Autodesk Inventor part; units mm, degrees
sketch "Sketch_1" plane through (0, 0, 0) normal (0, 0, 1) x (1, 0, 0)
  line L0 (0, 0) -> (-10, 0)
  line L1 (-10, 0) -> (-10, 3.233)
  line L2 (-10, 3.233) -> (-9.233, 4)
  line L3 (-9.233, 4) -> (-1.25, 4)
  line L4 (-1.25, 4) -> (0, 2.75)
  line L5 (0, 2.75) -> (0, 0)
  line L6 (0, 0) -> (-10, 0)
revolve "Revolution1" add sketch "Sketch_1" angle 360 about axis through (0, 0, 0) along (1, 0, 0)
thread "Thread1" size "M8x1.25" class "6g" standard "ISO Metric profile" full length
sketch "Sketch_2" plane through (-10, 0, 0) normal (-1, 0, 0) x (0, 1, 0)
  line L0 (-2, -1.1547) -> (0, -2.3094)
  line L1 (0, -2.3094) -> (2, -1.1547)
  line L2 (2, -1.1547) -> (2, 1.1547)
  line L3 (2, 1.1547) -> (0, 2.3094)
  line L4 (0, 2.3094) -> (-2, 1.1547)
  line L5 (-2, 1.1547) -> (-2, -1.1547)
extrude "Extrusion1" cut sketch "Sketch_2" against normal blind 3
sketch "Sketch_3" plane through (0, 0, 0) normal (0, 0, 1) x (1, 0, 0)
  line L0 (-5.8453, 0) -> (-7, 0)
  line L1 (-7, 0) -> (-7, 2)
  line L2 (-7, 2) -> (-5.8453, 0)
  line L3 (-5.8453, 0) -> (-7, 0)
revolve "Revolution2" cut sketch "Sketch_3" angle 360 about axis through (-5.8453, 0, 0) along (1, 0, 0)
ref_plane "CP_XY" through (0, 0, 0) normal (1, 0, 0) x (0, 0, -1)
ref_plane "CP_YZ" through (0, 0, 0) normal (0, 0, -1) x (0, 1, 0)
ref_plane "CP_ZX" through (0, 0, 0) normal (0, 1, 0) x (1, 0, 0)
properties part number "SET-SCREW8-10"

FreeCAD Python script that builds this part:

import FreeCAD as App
import Part
import Sketcher

V = App.Vector
Q = App.Units.Quantity

doc = App.newDocument("Part")
body = doc.addObject("PartDesign::Body", "Body")

sketch1 = body.newObject("Sketcher::SketchObject", "Sketch")
sketch1.AttachmentSupport = (doc.getObject("XY_Plane"), [""])
sketch1.MapMode = "FlatFace"
sketch1.addGeometry(Part.LineSegment(V(-10, 0, 0), V(0, 0, 0)), False)
sketch1.addGeometry(Part.LineSegment(V(0, 0, 0), V(0, 2.75, 0)), False)
sketch1.addGeometry(Part.LineSegment(V(0, 2.75, 0), V(-1.25, 4, 0)), False)
sketch1.addGeometry(Part.LineSegment(V(-1.25, 4, 0), V(-9.233, 4, 0)), False)
sketch1.addGeometry(Part.LineSegment(V(-9.233, 4, 0), V(-10, 3.233, 0)), False)
sketch1.addGeometry(Part.LineSegment(V(-10, 3.233, 0), V(-10, 0, 0)), False)
sketch1.addConstraint(Sketcher.Constraint("Coincident", 0, 2, 1, 1))
sketch1.addConstraint(Sketcher.Constraint("Coincident", 1, 2, 2, 1))
sketch1.addConstraint(Sketcher.Constraint("Coincident", 2, 2, 3, 1))
sketch1.addConstraint(Sketcher.Constraint("Coincident", 3, 2, 4, 1))
sketch1.addConstraint(Sketcher.Constraint("Coincident", 4, 2, 5, 1))
sketch1.addConstraint(Sketcher.Constraint("Coincident", 5, 2, 0, 1))
sketch1.addConstraint(Sketcher.Constraint("Horizontal", 0))
sketch1.addConstraint(Sketcher.Constraint("Vertical", 1))
sketch1.addConstraint(Sketcher.Constraint("Horizontal", 3))
sketch1.addConstraint(Sketcher.Constraint("Vertical", 5))
sketch1.addConstraint(Sketcher.Constraint("Coincident", 0, 2, -1, 1))
sketch1.addConstraint(Sketcher.Constraint("Perpendicular", 2, 4))
sketch1.addConstraint(Sketcher.Constraint("DistanceX", 0, 1, 0, 2, 10.0))
sketch1.addConstraint(Sketcher.Constraint("Angle", 2, Q("135 deg")))
sketch1.addConstraint(Sketcher.Constraint("DistanceY", -1, 1, 2, 2, 4.0))
sketch1.addConstraint(Sketcher.Constraint("DistanceY", 1, 1, 1, 2, 2.75))
sketch1.addConstraint(Sketcher.Constraint("DistanceX", 3, 2, 3, 1, 7.983))
revolution = body.newObject("PartDesign::Revolution", "Revolution")
revolution.Profile = sketch1
revolution.ReferenceAxis = (sketch1, ["H_Axis"])
revolution.Angle = 360

sketch2 = body.newObject("Sketcher::SketchObject", "Sketch001")
sketch2.AttachmentSupport = (doc.getObject("YZ_Plane"), [""])
sketch2.MapMode = "FlatFace"
sketch2.AttachmentOffset = App.Placement(V(0, 0, -10), App.Rotation())
sketch2.addGeometry(Part.LineSegment(V(-2, -1.1547, 0), V(-2, 1.1547, 0)), False)
sketch2.addGeometry(Part.LineSegment(V(-2, 1.1547, 0), V(0, 2.3094, 0)), False)
sketch2.addGeometry(Part.LineSegment(V(0, 2.3094, 0), V(2, 1.1547, 0)), False)
sketch2.addGeometry(Part.LineSegment(V(2, 1.1547, 0), V(2, -1.1547, 0)), False)
sketch2.addGeometry(Part.LineSegment(V(2, -1.1547, 0), V(0, -2.3094, 0)), False)
sketch2.addGeometry(Part.LineSegment(V(0, -2.3094, 0), V(-2, -1.1547, 0)), False)
sketch2.addConstraint(Sketcher.Constraint("Coincident", 0, 2, 1, 1))
sketch2.addConstraint(Sketcher.Constraint("Coincident", 1, 2, 2, 1))
sketch2.addConstraint(Sketcher.Constraint("Coincident", 2, 2, 3, 1))
sketch2.addConstraint(Sketcher.Constraint("Coincident", 3, 2, 4, 1))
sketch2.addConstraint(Sketcher.Constraint("Coincident", 4, 2, 5, 1))
sketch2.addConstraint(Sketcher.Constraint("Coincident", 5, 2, 0, 1))
sketch2.addConstraint(Sketcher.Constraint("Vertical", 0))
sketch2.addConstraint(Sketcher.Constraint("Vertical", 3))
sketch2.addConstraint(Sketcher.Constraint("Symmetric", 0, 2, 3, 2, -1, 1))
sketch2.addConstraint(Sketcher.Constraint("Symmetric", 1, 2, 4, 2, -1, 1))
sketch2.addConstraint(Sketcher.Constraint("PointOnObject", 1, 2, -2))
sketch2.addConstraint(Sketcher.Constraint("Parallel", 2, 5))
sketch2.addConstraint(Sketcher.Constraint("Horizontal", 0, 2, 2, 2))
sketch2.addConstraint(Sketcher.Constraint("Angle", 1, Q("30 deg")))
sketch2.addConstraint(Sketcher.Constraint("DistanceX", 0, 2, -1, 1, 2.0))
sketch2.addConstraint(Sketcher.Constraint("DistanceY", 0, 1, 0, 2, 2.3094))
pocket1 = body.newObject("PartDesign::Pocket", "Pocket")
pocket1.Profile = sketch2
pocket1.Length = 3
pocket1.Reversed = True

sketch3 = body.newObject("Sketcher::SketchObject", "Sketch002")
sketch3.AttachmentSupport = (doc.getObject("XY_Plane"), [""])
sketch3.MapMode = "FlatFace"
sketch3.addGeometry(Part.LineSegment(V(-7, 0, 0), V(-5.8453, 0, 0)), False)
sketch3.addGeometry(Part.LineSegment(V(-5.8453, 0, 0), V(-7, 2, 0)), False)
sketch3.addGeometry(Part.LineSegment(V(-7, 2, 0), V(-7, 0, 0)), False)
sketch3.addConstraint(Sketcher.Constraint("Coincident", 0, 2, 1, 1))
sketch3.addConstraint(Sketcher.Constraint("Coincident", 1, 2, 2, 1))
sketch3.addConstraint(Sketcher.Constraint("Coincident", 2, 2, 0, 1))
sketch3.addConstraint(Sketcher.Constraint("Horizontal", 0))
sketch3.addConstraint(Sketcher.Constraint("Vertical", 2))
sketch3.addConstraint(Sketcher.Constraint("PointOnObject", 0, 2, -1))
sketch3.addConstraint(Sketcher.Constraint("DistanceY", 2, 2, 2, 1, 2.0))
sketch3.addConstraint(Sketcher.Constraint("Angle", 1, Q("120 deg")))
sketch3.addConstraint(Sketcher.Constraint("DistanceX", 1, 2, -1, 1, 7.0))
groove = body.newObject("PartDesign::Groove", "Groove")
groove.Profile = sketch3
groove.ReferenceAxis = (sketch3, ["H_Axis"])
groove.Angle = 360

doc.recompute()
